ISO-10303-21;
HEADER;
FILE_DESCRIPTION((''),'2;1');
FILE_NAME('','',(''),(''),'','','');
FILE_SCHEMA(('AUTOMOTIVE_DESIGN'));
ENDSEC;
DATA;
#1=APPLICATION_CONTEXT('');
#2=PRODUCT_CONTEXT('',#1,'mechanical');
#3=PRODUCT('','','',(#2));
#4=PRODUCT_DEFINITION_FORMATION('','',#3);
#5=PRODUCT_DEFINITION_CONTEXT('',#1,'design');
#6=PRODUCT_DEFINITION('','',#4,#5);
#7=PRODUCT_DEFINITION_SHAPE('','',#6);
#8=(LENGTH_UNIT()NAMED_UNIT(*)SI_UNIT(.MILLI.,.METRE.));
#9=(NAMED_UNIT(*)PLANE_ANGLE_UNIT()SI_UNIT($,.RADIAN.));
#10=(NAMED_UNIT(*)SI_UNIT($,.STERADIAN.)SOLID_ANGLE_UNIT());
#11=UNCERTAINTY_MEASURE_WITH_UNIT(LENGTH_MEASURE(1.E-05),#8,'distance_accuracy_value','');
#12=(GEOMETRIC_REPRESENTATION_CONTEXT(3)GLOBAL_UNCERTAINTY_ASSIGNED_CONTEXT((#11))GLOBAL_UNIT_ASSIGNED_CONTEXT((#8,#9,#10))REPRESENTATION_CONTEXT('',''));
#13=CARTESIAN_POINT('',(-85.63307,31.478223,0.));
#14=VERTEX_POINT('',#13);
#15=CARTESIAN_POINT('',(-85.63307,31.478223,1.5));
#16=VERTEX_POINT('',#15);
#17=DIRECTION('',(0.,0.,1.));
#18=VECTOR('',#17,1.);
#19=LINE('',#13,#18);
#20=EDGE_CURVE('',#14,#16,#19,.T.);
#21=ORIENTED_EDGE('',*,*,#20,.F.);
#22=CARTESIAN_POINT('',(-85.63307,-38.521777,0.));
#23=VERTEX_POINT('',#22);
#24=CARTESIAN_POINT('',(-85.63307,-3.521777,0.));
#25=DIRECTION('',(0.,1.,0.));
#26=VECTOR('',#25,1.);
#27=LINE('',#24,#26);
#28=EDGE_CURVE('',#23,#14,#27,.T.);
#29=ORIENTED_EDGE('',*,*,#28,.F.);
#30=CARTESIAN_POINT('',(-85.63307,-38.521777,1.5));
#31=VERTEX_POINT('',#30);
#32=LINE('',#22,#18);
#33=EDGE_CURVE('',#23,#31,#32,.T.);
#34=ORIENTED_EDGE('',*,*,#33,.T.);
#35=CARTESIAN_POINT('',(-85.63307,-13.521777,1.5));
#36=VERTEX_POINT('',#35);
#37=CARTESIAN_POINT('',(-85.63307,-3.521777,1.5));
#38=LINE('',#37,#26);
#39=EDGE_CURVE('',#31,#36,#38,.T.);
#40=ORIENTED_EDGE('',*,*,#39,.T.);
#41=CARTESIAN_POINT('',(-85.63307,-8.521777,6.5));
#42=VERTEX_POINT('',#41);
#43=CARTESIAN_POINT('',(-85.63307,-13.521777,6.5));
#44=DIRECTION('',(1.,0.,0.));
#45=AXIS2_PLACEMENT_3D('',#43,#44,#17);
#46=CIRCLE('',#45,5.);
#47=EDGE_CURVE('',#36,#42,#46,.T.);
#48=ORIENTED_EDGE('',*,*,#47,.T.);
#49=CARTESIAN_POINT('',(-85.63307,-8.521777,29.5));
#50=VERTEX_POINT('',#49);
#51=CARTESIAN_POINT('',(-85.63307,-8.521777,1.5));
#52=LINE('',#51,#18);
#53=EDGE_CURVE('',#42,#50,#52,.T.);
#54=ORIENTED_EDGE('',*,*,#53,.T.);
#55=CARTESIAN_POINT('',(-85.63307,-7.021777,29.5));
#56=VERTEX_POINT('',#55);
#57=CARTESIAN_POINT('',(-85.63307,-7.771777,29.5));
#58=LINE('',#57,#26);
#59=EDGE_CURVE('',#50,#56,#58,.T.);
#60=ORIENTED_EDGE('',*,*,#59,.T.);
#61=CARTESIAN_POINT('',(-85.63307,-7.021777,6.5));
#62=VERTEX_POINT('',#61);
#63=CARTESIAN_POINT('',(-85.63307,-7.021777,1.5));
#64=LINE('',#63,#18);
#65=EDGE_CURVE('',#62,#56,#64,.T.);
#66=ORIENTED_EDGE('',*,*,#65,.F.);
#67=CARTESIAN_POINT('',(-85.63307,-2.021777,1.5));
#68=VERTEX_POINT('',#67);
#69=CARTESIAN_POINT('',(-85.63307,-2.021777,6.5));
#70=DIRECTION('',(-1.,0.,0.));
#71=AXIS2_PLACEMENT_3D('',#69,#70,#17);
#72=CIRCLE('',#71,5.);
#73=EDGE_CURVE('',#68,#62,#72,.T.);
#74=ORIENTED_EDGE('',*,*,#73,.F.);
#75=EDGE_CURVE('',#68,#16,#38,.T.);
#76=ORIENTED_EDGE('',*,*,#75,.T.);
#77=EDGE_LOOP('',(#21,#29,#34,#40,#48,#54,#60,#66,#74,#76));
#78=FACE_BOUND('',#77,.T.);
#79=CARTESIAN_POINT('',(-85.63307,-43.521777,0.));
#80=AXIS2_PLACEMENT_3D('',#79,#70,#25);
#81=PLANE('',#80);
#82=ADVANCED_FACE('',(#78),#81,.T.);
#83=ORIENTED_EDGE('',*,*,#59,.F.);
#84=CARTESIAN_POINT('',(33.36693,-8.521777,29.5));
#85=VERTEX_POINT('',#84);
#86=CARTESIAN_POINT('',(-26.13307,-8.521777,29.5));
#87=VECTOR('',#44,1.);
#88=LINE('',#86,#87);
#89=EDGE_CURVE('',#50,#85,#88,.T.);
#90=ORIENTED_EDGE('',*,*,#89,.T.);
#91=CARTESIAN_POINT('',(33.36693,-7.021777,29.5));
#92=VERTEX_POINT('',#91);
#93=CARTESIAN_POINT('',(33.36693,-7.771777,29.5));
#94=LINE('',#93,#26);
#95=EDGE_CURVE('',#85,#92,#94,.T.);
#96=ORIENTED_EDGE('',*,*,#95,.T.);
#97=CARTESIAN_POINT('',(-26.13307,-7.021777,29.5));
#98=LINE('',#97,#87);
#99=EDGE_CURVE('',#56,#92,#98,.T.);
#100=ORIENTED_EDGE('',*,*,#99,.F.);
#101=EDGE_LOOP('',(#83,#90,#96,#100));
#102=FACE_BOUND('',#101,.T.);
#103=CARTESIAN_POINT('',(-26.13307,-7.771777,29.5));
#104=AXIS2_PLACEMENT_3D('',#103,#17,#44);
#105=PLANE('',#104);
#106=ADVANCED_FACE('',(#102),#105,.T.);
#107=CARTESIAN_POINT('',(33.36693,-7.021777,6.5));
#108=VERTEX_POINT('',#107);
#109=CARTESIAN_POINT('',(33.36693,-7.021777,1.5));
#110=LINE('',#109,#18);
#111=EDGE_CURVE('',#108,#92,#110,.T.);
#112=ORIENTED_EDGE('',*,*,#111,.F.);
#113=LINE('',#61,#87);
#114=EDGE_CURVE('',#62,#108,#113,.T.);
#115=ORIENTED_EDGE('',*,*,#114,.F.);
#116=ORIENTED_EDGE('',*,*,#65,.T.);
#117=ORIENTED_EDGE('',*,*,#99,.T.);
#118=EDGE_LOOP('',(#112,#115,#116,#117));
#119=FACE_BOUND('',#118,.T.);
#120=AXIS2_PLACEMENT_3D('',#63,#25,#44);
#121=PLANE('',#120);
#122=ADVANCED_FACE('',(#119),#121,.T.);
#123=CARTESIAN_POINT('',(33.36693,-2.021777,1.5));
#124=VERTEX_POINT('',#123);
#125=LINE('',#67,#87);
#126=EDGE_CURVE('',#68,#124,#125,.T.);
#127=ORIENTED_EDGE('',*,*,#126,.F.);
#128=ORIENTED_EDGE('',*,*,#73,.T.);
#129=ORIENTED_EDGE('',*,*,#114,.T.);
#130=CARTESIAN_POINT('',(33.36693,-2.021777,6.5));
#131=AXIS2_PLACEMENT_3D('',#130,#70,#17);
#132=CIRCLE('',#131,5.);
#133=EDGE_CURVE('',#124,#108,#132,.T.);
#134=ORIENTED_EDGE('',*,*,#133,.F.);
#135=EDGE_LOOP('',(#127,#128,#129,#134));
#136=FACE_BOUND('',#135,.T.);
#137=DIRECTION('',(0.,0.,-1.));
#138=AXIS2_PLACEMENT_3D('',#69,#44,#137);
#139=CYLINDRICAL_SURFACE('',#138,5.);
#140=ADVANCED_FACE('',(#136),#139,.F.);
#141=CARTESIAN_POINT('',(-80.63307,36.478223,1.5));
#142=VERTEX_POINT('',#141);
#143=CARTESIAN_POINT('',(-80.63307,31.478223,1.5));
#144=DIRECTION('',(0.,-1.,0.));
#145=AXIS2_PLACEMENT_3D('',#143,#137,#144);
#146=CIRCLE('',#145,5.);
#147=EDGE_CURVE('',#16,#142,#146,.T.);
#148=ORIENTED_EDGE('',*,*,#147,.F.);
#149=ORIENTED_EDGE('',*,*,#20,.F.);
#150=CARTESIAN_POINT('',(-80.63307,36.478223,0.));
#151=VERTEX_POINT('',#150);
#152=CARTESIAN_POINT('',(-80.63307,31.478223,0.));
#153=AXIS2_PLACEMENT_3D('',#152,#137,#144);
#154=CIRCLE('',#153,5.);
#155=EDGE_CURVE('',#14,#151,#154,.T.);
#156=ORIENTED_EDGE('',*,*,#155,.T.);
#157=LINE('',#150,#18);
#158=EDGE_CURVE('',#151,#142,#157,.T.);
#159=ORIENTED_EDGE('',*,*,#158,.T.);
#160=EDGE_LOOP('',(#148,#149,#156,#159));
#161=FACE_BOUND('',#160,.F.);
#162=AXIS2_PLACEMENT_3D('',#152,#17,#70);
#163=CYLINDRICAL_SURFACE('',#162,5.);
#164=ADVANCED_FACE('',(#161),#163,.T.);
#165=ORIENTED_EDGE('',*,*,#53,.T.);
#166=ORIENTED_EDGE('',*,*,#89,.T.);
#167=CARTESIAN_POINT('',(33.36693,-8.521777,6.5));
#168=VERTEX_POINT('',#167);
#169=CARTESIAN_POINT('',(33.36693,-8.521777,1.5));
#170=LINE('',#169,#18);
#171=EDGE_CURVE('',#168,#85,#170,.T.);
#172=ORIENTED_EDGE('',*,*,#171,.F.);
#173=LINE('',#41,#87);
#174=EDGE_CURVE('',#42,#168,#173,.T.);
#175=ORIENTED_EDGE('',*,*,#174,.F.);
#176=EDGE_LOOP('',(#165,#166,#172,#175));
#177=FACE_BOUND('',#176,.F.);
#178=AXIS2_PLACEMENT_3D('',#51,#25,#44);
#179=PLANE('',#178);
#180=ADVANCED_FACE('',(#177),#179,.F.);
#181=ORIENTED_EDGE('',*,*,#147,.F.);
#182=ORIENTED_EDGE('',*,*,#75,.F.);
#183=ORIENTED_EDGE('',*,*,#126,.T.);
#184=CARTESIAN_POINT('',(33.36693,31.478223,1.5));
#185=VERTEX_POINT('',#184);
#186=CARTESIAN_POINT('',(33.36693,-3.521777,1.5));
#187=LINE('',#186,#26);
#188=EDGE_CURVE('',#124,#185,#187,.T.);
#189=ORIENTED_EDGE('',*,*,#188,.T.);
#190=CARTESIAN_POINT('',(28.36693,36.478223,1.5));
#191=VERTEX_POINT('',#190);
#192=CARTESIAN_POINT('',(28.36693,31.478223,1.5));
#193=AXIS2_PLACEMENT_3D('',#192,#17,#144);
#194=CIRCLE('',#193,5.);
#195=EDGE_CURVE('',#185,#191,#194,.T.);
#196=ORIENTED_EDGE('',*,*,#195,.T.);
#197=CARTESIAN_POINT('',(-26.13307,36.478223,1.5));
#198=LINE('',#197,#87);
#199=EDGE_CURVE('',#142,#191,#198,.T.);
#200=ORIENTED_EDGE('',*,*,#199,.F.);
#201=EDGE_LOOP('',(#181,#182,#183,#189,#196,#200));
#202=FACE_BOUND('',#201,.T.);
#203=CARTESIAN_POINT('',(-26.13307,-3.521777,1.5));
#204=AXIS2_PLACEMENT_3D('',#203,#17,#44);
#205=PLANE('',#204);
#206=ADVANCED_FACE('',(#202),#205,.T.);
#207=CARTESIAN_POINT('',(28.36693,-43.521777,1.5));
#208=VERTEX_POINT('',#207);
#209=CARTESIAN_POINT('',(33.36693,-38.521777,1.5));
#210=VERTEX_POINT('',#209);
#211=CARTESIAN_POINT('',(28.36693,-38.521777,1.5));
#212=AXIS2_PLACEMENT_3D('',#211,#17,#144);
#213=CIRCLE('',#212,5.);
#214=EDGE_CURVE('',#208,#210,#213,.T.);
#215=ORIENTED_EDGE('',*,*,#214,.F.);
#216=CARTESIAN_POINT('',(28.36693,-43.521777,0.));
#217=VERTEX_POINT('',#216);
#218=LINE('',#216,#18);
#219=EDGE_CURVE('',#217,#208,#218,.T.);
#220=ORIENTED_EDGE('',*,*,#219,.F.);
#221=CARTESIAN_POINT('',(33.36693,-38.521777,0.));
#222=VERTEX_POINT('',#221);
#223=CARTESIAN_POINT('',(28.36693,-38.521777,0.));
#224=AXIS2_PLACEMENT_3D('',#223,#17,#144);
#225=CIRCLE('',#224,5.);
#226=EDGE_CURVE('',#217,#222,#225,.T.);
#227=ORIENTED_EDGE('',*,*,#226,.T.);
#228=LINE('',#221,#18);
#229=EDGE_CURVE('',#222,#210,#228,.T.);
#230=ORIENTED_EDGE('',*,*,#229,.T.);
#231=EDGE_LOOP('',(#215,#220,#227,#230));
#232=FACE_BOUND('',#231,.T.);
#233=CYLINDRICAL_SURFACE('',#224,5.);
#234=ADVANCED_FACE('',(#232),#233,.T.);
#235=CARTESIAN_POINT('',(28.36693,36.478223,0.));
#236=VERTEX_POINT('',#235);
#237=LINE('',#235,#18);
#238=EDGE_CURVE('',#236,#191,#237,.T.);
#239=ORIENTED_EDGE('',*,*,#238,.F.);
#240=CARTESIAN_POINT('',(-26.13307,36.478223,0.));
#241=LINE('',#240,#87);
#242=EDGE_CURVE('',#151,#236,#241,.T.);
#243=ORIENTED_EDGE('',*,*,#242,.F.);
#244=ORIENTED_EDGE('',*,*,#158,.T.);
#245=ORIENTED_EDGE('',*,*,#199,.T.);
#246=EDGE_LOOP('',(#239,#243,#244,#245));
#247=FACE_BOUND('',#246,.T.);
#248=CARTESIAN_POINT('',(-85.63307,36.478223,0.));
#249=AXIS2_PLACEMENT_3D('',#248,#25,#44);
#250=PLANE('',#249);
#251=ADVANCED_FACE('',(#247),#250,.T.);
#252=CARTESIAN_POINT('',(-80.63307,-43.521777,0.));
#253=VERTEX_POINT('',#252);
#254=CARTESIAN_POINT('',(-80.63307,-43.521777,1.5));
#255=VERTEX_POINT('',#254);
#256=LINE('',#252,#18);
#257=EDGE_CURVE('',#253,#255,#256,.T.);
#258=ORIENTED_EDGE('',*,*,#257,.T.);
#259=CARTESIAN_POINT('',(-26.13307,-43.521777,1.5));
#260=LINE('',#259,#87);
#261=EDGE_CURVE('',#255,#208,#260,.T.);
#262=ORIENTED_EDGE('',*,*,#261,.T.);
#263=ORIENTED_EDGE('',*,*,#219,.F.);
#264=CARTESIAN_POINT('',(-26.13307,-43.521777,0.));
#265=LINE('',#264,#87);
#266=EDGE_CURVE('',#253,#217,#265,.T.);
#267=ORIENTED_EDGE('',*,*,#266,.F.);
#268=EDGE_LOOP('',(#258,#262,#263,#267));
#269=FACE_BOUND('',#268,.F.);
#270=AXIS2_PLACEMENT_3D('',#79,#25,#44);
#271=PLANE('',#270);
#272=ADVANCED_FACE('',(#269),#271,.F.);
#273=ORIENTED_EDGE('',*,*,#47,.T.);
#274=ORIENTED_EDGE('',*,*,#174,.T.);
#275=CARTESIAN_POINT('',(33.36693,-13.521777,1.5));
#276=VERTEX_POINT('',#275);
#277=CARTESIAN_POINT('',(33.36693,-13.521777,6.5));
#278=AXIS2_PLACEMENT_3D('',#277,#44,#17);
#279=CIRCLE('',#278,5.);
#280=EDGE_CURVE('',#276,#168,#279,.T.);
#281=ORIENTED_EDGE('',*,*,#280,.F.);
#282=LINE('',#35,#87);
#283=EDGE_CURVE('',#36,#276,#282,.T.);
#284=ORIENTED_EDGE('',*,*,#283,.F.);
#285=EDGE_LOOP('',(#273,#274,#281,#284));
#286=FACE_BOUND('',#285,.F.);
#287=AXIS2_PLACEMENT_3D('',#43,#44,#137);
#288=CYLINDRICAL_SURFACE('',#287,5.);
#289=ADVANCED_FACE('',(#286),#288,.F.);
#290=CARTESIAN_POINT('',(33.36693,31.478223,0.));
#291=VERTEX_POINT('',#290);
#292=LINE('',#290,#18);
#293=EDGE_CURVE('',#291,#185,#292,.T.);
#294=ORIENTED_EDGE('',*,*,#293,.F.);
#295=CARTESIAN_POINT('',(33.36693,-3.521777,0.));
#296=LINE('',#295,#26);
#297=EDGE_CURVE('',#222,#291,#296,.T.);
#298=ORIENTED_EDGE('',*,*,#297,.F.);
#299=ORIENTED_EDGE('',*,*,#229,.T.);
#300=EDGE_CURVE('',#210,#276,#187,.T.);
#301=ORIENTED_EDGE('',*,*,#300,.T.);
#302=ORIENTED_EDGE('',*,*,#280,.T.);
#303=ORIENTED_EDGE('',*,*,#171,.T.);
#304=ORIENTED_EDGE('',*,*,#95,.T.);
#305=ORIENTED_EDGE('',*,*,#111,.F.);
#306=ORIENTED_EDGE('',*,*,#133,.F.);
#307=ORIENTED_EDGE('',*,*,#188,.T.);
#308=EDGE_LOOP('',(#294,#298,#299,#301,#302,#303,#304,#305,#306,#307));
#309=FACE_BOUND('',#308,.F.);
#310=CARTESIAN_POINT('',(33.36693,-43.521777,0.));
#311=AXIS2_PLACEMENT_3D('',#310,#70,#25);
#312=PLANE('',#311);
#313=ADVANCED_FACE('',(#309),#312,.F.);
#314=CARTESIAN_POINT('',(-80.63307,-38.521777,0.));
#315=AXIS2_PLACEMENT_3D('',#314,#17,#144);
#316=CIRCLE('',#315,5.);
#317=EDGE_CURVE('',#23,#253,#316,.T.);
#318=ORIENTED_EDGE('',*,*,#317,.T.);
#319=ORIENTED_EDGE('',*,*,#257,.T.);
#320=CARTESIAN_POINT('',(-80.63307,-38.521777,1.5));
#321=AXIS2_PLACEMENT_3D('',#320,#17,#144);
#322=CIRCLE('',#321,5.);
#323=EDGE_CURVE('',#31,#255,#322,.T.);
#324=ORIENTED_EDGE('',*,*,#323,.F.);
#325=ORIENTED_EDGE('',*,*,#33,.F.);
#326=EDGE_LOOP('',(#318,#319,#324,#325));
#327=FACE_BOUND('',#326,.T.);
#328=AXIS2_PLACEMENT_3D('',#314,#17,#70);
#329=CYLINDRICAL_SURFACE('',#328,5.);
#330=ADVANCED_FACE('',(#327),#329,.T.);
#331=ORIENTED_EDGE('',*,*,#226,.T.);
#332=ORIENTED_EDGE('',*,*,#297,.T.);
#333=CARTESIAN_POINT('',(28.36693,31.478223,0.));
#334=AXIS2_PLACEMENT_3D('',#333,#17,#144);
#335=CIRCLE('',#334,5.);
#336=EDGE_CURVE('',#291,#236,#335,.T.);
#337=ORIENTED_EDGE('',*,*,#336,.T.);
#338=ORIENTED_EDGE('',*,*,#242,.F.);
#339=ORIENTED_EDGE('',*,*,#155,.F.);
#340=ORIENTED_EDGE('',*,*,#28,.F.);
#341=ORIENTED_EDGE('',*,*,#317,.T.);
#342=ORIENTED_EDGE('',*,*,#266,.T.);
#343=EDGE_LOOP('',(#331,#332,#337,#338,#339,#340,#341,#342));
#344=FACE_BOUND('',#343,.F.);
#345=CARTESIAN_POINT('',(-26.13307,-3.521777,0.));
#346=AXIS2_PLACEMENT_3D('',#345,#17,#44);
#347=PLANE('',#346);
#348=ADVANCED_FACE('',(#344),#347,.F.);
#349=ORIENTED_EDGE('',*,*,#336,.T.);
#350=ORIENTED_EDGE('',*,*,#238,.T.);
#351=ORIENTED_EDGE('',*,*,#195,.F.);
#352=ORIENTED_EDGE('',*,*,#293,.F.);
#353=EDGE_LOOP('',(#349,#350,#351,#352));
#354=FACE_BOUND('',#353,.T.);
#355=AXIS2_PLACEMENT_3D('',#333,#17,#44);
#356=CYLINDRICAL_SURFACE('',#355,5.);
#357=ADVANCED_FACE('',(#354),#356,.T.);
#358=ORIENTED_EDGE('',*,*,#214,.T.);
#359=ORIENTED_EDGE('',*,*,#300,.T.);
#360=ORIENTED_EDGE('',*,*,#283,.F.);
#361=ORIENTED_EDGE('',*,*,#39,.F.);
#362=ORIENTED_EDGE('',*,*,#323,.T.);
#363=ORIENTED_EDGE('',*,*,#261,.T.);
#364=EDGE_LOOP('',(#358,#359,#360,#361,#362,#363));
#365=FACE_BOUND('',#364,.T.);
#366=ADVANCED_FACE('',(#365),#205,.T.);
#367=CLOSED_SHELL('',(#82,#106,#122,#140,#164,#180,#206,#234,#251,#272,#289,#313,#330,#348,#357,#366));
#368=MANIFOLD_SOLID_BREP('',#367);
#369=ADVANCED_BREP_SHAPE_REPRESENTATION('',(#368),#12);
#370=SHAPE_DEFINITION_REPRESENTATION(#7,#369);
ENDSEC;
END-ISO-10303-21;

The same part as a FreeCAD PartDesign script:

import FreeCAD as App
import Part
import Sketcher

V = App.Vector
Q = App.Units.Quantity


def edges_at(feature, points):
    """Names of the edges that pass closest to the given points."""
    edges = feature.Shape.Edges
    near = lambda p: min(range(len(edges)), key=lambda i: edges[i].distToShape(Part.Vertex(*p))[0])
    return sorted({f"Edge{near(p) + 1}" for p in points})


def add_polygon(sketch, points):
    """Adds a closed chain of lines whose ends are joined by coincident constraints."""
    first, n = sketch.GeometryCount, len(points)
    for a, b in zip(points, points[1:] + points[:1]):
        sketch.addGeometry(Part.LineSegment(App.Vector(*a, 0), App.Vector(*b, 0)), False)
    for i in range(n):
        sketch.addConstraint(Sketcher.Constraint("Coincident", first + i, 2, first + (i + 1) % n, 1))

doc = App.newDocument("Part")
body = doc.addObject("PartDesign::Body", "Body")

sketch1 = doc.addObject("Sketcher::SketchObject", "Sketch")
body.addObject(sketch1)
sketch1.AttachmentSupport = (doc.XY_Plane, [""])
sketch1.MapMode = "FlatFace"
add_polygon(sketch1, [(-86, 36), (-86, -44), (33, -44), (33, 36)])
sketch1.addConstraint([
    Sketcher.Constraint("Vertical", 0),
    Sketcher.Constraint("Horizontal", 1),
    Sketcher.Constraint("Vertical", 2),
    Sketcher.Constraint("Horizontal", 3),
    Sketcher.Constraint("DistanceX", 1, 1, 1, 2, Q("119 mm")),
    Sketcher.Constraint("DistanceY", 0, 2, 0, 1, Q("80 mm")),
    Sketcher.Constraint("DistanceX", 0, 2, -1, 1, Q("85.63307 mm")),
    Sketcher.Constraint("DistanceY", 0, 2, -1, 1, Q("43.521777 mm")),
])
pad1 = doc.addObject("PartDesign::Pad", "Pad")
body.addObject(pad1)
pad1.Profile = sketch1
pad1.Length = 1.5
doc.recompute()

fillet = doc.addObject("PartDesign::Fillet", "Fillet")
body.addObject(fillet)
fillet.Base = (pad1, edges_at(pad1, [
    (33.367, -43.522, 0.75),
    (33.367, 36.478, 0.75),
    (-85.633, 36.478, 0.75),
    (-85.633, -43.522, 0.75),
]))
fillet.Radius = 5

sketch2 = doc.addObject("Sketcher::SketchObject", "Sketch001")
body.addObject(sketch2)
sketch2.AttachmentSupport = (doc.XY_Plane, [""])
sketch2.MapMode = "FlatFace"
sketch2.AttachmentOffset = App.Placement(V(0, 0, 1.5), App.Rotation())
add_polygon(sketch2, [(-85.6, -7), (-85.6, -8.5), (33.4, -8.5), (33.4, -7)])
sketch2.addConstraint([
    Sketcher.Constraint("Vertical", 0),
    Sketcher.Constraint("Horizontal", 1),
    Sketcher.Constraint("Vertical", 2),
    Sketcher.Constraint("Horizontal", 3),
    Sketcher.Constraint("DistanceX", 1, 1, 1, 2, Q("119 mm")),
    Sketcher.Constraint("DistanceY", 0, 2, 0, 1, Q("1.5 mm")),
    Sketcher.Constraint("DistanceX", 0, 2, -1, 1, Q("85.63307 mm")),
    Sketcher.Constraint("DistanceY", 0, 2, -1, 1, Q("8.521777 mm")),
])
pad2 = doc.addObject("PartDesign::Pad", "Pad001")
body.addObject(pad2)
pad2.Profile = sketch2
pad2.Length = 28
doc.recompute()

fillet2 = doc.addObject("PartDesign::Fillet", "Fillet001")
body.addObject(fillet2)
fillet2.Base = (pad2, edges_at(pad2, [(-26.133, -7.022, 1.5), (-26.133, -8.522, 1.5)]))
fillet2.Radius = 5

doc.recompute()
